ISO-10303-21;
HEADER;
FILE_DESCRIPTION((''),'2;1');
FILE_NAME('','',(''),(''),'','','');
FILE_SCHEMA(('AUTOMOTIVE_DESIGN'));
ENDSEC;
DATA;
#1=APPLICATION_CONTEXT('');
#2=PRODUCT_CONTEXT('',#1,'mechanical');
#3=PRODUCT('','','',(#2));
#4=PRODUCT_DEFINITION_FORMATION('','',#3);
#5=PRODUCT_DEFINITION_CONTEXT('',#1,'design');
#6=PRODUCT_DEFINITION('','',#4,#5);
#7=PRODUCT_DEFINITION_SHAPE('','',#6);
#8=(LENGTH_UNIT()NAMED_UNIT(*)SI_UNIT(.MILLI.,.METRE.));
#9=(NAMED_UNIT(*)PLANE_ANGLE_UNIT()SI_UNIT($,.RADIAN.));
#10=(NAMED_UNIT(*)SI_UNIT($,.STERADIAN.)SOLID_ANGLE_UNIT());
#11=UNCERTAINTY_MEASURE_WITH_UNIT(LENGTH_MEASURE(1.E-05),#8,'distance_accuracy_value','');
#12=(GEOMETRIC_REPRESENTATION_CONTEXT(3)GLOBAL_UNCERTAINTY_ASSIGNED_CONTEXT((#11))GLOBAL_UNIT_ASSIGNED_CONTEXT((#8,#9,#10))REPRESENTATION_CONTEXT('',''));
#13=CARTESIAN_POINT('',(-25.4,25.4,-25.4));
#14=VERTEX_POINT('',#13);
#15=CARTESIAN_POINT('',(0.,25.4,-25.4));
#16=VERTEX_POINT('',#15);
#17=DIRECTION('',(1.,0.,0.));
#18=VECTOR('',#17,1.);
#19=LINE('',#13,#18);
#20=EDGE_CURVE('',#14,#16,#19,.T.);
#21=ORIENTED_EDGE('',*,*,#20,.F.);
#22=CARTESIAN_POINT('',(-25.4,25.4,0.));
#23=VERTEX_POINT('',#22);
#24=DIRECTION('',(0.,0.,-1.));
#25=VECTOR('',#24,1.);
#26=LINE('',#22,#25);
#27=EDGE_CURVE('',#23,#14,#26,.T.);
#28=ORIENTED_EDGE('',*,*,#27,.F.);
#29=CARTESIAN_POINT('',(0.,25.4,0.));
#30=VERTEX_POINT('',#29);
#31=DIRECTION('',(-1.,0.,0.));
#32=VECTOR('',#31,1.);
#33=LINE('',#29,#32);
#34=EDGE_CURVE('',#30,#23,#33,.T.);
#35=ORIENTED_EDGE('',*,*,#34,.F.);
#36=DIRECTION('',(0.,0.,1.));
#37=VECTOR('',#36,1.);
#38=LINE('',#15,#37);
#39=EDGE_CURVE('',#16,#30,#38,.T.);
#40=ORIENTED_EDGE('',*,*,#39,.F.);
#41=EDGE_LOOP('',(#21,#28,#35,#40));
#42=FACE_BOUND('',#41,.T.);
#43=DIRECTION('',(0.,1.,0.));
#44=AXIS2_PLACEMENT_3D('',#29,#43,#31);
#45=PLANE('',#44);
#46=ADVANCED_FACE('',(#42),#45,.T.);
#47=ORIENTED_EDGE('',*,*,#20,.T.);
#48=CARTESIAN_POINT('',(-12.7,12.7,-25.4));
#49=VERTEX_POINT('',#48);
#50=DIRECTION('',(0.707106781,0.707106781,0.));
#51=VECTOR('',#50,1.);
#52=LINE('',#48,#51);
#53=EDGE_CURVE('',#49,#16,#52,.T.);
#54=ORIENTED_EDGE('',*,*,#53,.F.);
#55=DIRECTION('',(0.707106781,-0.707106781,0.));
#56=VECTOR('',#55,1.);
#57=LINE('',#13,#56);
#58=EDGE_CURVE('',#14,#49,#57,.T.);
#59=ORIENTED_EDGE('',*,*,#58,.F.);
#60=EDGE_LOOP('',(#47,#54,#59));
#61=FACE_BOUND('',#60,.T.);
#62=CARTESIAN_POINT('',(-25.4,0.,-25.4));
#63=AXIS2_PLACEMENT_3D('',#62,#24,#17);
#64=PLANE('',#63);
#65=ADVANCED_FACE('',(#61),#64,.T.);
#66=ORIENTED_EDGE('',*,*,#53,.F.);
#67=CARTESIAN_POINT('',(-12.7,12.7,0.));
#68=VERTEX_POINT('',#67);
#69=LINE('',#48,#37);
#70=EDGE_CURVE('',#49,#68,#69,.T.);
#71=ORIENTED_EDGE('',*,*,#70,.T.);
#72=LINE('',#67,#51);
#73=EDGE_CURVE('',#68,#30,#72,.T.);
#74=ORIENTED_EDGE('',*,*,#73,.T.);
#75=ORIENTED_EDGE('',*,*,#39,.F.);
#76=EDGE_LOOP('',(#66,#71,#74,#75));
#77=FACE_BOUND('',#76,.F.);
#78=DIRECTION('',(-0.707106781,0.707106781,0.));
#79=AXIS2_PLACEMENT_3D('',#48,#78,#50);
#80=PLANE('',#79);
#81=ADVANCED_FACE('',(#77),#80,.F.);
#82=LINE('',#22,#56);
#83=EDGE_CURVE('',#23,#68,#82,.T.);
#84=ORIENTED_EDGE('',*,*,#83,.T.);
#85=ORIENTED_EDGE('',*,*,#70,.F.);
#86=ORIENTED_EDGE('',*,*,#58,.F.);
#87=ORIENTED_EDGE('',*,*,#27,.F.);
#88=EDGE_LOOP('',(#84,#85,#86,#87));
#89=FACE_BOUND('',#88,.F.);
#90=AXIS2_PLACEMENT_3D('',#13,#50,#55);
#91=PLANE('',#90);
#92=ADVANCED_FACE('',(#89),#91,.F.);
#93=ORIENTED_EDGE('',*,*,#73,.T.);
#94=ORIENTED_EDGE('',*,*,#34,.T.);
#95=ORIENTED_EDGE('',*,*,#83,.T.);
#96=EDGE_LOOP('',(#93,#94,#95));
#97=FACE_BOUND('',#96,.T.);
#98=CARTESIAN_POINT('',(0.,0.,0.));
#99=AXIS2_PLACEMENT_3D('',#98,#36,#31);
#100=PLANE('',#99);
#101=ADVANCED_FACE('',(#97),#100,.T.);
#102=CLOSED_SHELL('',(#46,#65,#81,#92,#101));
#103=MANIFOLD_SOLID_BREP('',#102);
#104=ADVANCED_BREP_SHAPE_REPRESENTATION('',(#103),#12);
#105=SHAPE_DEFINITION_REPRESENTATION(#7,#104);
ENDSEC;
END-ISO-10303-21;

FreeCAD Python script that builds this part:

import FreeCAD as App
import Part
import Sketcher

V = App.Vector
Q = App.Units.Quantity


def add_polygon(sketch, points):
    """Adds a closed chain of lines whose ends are joined by coincident constraints."""
    first, n = sketch.GeometryCount, len(points)
    for a, b in zip(points, points[1:] + points[:1]):
        sketch.addGeometry(Part.LineSegment(App.Vector(*a, 0), App.Vector(*b, 0)), False)
    for i in range(n):
        sketch.addConstraint(Sketcher.Constraint("Coincident", first + i, 2, first + (i + 1) % n, 1))

doc = App.newDocument("Part")
body = doc.addObject("PartDesign::Body", "Body")

# Sketch on XZ plane
sketch1 = body.newObject("Sketcher::SketchObject", "Sketch")
sketch1.AttachmentSupport = (doc.getObject("XZ_Plane"), [""])
sketch1.MapMode = "FlatFace"
add_polygon(sketch1, [(-25, 0), (0, 0), (0, -25), (-25, -25)])  # lines 0-3
sketch1.addConstraint(Sketcher.Constraint("Horizontal", 0))
sketch1.addConstraint(Sketcher.Constraint("Vertical", 1))
sketch1.addConstraint(Sketcher.Constraint("Horizontal", 2))
sketch1.addConstraint(Sketcher.Constraint("Vertical", 3))
sketch1.addConstraint(Sketcher.Constraint("Coincident", 0, 2, -1, 1))
sketch1.addConstraint(Sketcher.Constraint("Equal", 2, 1))
sketch1.addConstraint(Sketcher.Constraint("DistanceX", 0, 1, 0, 2, Q("1 in")))
pad1 = body.newObject("PartDesign::Pad", "Pad")
pad1.Profile = sketch1
pad1.Length = Q("1 in")
pad1.Reversed = True

# Sketch on XY plane
sketch2 = body.newObject("Sketcher::SketchObject", "Sketch001")
sketch2.AttachmentSupport = (doc.getObject("XY_Plane"), [""])
sketch2.MapMode = "FlatFace"
sketch2.AttachmentOffset = App.Placement(V(0, 0, -1 * 25.4), App.Rotation())
add_polygon(sketch2, [(-25, 0), (-25, 25), (-13, 13), (0, 25), (0, 0)])  # lines 0-4
sketch2.addConstraint(Sketcher.Constraint("Vertical", 0))
sketch2.addConstraint(Sketcher.Constraint("Vertical", 3))
sketch2.addConstraint(Sketcher.Constraint("Horizontal", 4))
sketch2.addConstraint(Sketcher.Constraint("Coincident", 3, 2, -1, 1))
sketch2.addConstraint(Sketcher.Constraint("Perpendicular", 1, 2))
sketch2.addConstraint(Sketcher.Constraint("Horizontal", 0, 2, 2, 2))
sketch2.addConstraint(Sketcher.Constraint("Equal", 4, 0))
sketch2.addConstraint(Sketcher.Constraint("Equal", 1, 2))
sketch2.addConstraint(Sketcher.Constraint("DistanceX", 4, 2, 4, 1, Q("1 in")))
pocket1 = body.newObject("PartDesign::Pocket", "Pocket")
pocket1.Profile = sketch2
pocket1.Length = Q("1 in")
pocket1.Reversed = True

doc.recompute()
